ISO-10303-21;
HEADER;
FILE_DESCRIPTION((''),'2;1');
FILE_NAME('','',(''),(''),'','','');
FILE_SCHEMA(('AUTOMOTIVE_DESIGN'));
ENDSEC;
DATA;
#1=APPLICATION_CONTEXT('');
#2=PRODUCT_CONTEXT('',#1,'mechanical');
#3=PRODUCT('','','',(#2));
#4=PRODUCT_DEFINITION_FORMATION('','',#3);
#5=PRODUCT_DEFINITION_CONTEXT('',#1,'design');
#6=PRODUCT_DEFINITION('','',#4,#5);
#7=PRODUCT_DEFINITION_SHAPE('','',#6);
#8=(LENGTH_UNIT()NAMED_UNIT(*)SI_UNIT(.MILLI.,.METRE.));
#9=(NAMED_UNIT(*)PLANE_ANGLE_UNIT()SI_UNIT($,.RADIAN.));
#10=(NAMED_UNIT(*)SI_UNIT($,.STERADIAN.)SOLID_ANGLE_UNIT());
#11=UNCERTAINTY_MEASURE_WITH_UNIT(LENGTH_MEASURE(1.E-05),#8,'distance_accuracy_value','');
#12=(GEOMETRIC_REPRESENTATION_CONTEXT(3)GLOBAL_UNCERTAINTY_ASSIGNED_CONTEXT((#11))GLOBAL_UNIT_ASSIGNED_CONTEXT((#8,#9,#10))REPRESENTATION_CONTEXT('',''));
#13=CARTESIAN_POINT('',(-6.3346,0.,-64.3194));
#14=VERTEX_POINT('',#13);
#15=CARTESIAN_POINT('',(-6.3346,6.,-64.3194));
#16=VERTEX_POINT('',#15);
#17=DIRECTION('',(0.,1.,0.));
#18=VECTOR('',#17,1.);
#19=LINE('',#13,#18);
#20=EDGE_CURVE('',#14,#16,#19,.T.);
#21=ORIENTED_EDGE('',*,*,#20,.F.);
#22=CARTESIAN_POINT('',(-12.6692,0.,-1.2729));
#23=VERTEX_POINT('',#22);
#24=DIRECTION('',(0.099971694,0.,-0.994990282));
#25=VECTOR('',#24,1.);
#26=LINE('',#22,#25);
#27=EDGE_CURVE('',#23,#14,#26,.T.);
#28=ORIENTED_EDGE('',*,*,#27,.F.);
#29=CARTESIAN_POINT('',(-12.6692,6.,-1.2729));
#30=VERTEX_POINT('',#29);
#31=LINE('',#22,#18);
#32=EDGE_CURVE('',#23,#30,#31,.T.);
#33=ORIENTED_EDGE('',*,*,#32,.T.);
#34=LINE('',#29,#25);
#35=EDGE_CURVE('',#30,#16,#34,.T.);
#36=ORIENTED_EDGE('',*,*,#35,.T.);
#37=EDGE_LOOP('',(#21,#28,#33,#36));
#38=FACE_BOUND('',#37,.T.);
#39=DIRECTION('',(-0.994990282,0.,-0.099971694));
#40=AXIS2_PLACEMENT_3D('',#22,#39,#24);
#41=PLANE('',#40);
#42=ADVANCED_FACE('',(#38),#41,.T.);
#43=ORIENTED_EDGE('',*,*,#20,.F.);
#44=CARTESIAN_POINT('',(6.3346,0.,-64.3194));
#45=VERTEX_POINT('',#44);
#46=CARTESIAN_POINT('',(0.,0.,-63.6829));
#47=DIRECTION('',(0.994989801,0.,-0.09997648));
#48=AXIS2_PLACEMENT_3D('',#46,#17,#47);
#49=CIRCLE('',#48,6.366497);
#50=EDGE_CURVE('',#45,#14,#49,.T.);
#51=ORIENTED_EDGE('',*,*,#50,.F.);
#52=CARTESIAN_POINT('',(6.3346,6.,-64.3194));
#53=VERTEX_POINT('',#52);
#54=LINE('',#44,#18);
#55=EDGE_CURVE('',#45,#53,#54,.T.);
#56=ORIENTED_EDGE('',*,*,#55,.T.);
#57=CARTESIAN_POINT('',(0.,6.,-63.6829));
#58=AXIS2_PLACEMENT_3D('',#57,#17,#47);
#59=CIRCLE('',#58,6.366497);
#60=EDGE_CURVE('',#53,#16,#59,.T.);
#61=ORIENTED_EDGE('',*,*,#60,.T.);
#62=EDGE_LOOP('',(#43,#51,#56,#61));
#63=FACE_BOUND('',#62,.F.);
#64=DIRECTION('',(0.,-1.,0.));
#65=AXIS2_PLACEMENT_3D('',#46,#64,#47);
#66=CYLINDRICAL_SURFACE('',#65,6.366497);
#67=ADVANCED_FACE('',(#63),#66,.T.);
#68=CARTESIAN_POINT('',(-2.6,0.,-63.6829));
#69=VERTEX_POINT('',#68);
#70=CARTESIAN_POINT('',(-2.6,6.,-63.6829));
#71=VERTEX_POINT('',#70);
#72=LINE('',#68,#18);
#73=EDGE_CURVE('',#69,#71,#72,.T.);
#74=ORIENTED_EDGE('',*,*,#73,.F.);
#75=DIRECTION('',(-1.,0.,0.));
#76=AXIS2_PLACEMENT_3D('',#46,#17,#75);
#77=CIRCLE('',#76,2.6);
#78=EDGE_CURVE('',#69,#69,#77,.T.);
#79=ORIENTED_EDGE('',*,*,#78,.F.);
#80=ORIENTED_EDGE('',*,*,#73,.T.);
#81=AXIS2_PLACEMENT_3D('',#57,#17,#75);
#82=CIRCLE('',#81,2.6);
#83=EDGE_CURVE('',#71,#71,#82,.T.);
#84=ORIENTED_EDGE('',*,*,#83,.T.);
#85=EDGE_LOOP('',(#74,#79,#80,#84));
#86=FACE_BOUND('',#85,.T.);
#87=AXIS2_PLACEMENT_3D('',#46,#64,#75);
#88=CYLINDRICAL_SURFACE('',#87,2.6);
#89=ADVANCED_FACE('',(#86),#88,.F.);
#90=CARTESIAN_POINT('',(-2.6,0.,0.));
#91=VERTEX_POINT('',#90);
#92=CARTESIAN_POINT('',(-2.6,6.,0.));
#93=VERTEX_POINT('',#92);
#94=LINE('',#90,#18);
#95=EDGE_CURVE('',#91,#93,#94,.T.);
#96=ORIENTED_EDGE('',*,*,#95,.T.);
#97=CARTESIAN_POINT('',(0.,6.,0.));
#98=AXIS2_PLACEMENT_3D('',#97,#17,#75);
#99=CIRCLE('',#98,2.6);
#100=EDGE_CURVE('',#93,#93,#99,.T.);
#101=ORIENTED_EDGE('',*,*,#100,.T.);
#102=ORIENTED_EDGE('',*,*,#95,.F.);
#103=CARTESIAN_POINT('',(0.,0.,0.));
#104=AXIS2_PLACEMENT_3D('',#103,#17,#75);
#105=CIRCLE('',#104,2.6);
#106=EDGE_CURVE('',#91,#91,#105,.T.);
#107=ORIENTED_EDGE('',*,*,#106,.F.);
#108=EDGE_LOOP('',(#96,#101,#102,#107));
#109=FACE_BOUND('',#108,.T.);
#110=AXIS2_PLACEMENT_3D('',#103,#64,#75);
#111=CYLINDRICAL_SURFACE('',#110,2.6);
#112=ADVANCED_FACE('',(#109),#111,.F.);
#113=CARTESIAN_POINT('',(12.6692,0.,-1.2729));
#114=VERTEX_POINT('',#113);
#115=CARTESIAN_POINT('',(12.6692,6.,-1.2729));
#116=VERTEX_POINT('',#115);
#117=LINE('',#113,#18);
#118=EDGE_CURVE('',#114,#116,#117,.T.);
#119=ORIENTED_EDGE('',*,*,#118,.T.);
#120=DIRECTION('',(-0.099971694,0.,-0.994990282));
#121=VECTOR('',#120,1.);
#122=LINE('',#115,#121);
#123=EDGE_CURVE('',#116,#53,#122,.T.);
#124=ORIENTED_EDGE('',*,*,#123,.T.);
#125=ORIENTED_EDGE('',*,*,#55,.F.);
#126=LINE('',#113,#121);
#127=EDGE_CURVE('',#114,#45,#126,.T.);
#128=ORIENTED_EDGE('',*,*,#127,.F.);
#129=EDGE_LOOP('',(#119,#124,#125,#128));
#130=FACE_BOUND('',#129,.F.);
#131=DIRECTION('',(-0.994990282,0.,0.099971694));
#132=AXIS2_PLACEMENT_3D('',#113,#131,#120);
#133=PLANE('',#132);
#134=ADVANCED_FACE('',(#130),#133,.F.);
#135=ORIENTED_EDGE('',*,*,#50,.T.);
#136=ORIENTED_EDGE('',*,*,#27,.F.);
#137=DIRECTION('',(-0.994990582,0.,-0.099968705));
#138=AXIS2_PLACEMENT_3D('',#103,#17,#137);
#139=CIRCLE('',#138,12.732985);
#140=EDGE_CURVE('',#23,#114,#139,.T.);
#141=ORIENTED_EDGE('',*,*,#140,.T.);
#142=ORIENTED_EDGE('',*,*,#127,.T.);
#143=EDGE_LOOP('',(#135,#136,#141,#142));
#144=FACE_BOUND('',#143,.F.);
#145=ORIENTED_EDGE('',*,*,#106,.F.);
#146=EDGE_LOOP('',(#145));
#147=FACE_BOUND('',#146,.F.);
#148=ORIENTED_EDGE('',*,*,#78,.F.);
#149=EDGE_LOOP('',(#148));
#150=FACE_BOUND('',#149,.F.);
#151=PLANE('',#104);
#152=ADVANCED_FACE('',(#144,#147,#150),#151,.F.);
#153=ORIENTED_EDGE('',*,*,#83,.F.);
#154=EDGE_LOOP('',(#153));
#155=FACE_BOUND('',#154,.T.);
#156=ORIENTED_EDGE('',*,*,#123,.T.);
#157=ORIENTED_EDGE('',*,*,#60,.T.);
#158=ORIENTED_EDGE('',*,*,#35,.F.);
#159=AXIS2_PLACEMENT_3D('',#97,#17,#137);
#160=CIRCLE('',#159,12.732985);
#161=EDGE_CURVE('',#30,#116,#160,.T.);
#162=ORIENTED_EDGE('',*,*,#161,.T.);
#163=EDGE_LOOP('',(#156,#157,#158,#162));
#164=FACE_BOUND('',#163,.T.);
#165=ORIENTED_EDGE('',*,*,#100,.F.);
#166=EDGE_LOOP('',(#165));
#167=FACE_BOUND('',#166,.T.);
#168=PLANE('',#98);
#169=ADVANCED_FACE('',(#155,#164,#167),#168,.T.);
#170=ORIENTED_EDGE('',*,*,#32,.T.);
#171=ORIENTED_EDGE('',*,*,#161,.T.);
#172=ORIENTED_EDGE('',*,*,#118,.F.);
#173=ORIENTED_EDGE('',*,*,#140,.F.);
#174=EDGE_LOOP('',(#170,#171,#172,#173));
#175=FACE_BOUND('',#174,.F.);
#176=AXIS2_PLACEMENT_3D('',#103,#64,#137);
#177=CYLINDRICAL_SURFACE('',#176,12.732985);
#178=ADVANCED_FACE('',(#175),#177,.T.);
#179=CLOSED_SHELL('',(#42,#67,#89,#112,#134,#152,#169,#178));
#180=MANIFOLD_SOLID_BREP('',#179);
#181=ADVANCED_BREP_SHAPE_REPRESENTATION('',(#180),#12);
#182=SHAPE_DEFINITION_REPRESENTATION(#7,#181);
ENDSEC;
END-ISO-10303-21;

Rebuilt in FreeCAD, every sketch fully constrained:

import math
import FreeCAD as App
import Part
import Sketcher

doc = App.newDocument("Part")
body = doc.addObject("PartDesign::Body", "Body")

# Sketch on XZ plane
sketch1 = doc.addObject("Sketcher::SketchObject", "Sketch")
body.addObject(sketch1)
sketch1.AttachmentSupport = (doc.XZ_Plane, [""])
sketch1.MapMode = "FlatFace"
sketch1.addGeometry(Part.LineSegment(App.Vector(-6.3, -64.3, 0), App.Vector(-12.7, -1.3, 0)), False)
sketch1.addGeometry(Part.ArcOfCircle(Part.Circle(App.Vector(0, 0, 0), App.Vector(0, 0, 1), 12.7), math.radians(-6), math.radians(186)), False)
sketch1.addGeometry(Part.LineSegment(App.Vector(12.7, -1.3, 0), App.Vector(6.3, -64.3, 0)), False)
sketch1.addGeometry(Part.ArcOfCircle(Part.Circle(App.Vector(0, -63.7, 0), App.Vector(0, 0, 1), 6.4), math.radians(-174), math.radians(-6)), False)
sketch1.addGeometry(Part.Circle(App.Vector(0, -63.7, 0), App.Vector(0, 0, 1), 2.6), False)
sketch1.addGeometry(Part.Circle(App.Vector(0, 0, 0), App.Vector(0, 0, 1), 2.6), False)
sketch1.addConstraint(Sketcher.Constraint("Tangent", 0, 2, 1, 2))
sketch1.addConstraint(Sketcher.Constraint("Tangent", 1, 1, 2, 1))
sketch1.addConstraint(Sketcher.Constraint("Tangent", 2, 2, 3, 2))
sketch1.addConstraint(Sketcher.Constraint("Tangent", 3, 1, 0, 1))
sketch1.addConstraint(Sketcher.Constraint("Coincident", 1, 3, -1, 1))
sketch1.addConstraint(Sketcher.Constraint("Coincident", 5, 3, -1, 1))
sketch1.addConstraint(Sketcher.Constraint("Coincident", 4, 3, 3, 3))
sketch1.addConstraint(Sketcher.Constraint("Equal", 4, 5))
sketch1.addConstraint(Sketcher.Constraint("PointOnObject", 3, 3, -2))
sketch1.addConstraint(Sketcher.Constraint("Diameter", 4, 5.2))
sketch1.addConstraint(Sketcher.Constraint("Radius", 1, 12.733))
sketch1.addConstraint(Sketcher.Constraint("Radius", 3, 6.3665))
sketch1.addConstraint(Sketcher.Constraint("DistanceY", 3, 3, -1, 1, 63.683))
pad1 = doc.addObject("PartDesign::Pad", "Pad")
body.addObject(pad1)
pad1.Profile = sketch1
pad1.Length = 6
pad1.Reversed = True

doc.recompute()
